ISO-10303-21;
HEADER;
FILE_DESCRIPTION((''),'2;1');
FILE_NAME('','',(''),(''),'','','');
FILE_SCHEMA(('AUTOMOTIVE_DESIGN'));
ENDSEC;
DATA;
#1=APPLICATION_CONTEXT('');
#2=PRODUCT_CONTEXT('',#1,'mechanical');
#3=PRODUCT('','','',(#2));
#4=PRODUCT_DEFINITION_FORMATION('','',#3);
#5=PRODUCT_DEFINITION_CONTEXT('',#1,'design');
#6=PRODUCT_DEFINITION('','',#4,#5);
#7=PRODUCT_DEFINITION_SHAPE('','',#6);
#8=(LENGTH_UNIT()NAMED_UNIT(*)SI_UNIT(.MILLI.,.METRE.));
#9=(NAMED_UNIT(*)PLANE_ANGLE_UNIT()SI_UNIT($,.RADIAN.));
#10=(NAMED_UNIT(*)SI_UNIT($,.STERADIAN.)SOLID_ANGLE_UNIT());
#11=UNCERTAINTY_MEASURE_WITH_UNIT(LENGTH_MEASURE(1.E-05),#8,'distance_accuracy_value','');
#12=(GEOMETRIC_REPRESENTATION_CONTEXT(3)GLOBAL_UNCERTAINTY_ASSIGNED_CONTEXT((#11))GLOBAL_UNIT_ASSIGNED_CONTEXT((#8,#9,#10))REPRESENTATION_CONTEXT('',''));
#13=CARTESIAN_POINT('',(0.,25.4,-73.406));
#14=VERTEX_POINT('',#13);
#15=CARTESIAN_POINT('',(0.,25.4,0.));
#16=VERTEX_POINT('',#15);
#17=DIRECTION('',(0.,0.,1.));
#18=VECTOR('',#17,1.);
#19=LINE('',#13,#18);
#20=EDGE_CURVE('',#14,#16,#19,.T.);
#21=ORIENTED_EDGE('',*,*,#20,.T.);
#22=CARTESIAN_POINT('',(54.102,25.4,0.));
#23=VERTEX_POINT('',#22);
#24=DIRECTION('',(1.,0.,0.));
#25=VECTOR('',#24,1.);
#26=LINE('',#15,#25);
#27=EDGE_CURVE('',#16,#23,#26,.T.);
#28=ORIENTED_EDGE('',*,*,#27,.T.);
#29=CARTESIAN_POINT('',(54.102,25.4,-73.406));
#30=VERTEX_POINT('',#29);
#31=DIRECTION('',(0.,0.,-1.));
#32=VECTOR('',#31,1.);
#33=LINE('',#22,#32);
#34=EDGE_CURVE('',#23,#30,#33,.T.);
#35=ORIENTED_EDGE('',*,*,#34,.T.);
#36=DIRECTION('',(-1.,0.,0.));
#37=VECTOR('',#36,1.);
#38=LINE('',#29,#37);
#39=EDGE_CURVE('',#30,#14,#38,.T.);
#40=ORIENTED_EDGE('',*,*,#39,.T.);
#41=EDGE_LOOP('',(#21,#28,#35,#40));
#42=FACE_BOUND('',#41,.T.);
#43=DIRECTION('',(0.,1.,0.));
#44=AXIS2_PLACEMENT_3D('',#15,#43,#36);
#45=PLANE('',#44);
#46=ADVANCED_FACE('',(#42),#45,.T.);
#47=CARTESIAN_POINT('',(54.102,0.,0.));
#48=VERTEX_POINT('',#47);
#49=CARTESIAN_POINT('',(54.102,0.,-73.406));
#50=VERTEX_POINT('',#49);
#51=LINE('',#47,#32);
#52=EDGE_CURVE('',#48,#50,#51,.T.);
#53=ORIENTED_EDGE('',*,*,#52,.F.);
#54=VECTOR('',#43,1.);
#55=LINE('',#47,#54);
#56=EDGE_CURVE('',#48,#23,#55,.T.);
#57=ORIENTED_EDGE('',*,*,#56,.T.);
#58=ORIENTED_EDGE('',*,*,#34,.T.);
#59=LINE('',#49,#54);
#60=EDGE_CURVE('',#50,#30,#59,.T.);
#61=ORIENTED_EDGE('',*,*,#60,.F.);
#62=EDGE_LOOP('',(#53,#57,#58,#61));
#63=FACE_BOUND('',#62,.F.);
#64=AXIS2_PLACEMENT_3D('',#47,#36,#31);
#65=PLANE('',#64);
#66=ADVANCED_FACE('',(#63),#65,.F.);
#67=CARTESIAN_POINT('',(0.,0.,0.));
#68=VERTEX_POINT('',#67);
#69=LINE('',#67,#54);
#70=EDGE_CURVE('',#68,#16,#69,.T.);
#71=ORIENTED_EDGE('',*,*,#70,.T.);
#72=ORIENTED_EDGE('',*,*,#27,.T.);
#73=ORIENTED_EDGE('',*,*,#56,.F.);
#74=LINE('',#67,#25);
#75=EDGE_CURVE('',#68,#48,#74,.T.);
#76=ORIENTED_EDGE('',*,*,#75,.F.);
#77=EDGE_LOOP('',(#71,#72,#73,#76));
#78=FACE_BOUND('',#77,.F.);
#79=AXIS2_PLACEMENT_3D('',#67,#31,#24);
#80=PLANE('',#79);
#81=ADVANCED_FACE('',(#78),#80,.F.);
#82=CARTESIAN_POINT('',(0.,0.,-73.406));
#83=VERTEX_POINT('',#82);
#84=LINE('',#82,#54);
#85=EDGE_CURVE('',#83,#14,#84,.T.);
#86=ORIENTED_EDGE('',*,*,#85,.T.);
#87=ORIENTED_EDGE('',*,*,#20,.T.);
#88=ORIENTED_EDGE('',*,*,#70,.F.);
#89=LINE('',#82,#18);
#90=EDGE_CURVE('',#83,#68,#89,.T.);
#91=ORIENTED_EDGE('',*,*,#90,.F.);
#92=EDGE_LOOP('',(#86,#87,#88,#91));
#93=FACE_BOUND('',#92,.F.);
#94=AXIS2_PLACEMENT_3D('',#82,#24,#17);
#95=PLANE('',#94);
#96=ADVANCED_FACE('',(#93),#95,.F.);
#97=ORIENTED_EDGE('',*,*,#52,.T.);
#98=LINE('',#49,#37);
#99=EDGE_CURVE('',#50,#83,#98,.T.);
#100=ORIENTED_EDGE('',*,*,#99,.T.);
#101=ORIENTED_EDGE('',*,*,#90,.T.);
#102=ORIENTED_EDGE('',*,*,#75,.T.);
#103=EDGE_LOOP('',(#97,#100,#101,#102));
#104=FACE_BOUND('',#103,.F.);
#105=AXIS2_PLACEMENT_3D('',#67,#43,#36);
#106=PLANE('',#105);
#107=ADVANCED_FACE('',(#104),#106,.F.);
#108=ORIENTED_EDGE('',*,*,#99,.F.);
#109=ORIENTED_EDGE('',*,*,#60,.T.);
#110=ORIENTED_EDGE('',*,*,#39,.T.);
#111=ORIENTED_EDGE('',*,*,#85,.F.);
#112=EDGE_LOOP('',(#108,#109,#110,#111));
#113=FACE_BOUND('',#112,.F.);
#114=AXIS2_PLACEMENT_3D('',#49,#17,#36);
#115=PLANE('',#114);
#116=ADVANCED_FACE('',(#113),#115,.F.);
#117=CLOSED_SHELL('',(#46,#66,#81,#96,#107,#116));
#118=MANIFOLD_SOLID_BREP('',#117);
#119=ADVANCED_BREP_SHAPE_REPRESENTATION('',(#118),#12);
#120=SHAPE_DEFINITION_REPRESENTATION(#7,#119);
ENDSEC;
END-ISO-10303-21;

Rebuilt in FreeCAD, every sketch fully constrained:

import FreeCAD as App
import Part
import Sketcher

V = App.Vector
Q = App.Units.Quantity

doc = App.newDocument("Part")
body = doc.addObject("PartDesign::Body", "Body")

# Sketch on XZ plane
sketch1 = doc.addObject("Sketcher::SketchObject", "Sketch")
body.addObject(sketch1)
sketch1.AttachmentSupport = (doc.XZ_Plane, [""])
sketch1.MapMode = "FlatFace"
sketch1.addGeometry([
    Part.LineSegment(V(0, -73, 0), V(0, 0, 0)),
    Part.LineSegment(V(0, 0, 0), V(54, 0, 0)),
    Part.LineSegment(V(54, 0, 0), V(54, -73, 0)),
    Part.LineSegment(V(54, -73, 0), V(0, -73, 0)),
], False)
sketch1.addConstraint([
    Sketcher.Constraint("Coincident", 0, 2, 1, 1),
    Sketcher.Constraint("Coincident", 1, 2, 2, 1),
    Sketcher.Constraint("Coincident", 2, 2, 3, 1),
    Sketcher.Constraint("Coincident", 3, 2, 0, 1),
    Sketcher.Constraint("Vertical", 0),
    Sketcher.Constraint("Horizontal", 1),
    Sketcher.Constraint("Vertical", 2),
    Sketcher.Constraint("Horizontal", 3),
    Sketcher.Constraint("Coincident", 0, 2, -1, 1),
    Sketcher.Constraint("DistanceX", 1, 1, 1, 2, Q("2.13 in")),
    Sketcher.Constraint("DistanceY", 0, 1, 0, 2, Q("2.89 in")),
])
pad1 = doc.addObject("PartDesign::Pad", "Pad")
body.addObject(pad1)
pad1.Profile = sketch1
pad1.Length = Q("1 in")
pad1.Reversed = True

doc.recompute()
